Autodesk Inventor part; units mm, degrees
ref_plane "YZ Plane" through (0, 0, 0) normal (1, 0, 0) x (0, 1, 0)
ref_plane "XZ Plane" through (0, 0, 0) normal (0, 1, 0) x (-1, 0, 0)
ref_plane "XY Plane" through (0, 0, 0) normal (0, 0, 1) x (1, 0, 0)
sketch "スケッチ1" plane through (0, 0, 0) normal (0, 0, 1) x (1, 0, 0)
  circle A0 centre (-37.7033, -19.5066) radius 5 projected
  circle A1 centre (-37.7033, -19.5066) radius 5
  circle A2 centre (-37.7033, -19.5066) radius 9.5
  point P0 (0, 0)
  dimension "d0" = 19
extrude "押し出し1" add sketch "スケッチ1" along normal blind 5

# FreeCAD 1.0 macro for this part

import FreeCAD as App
import Part
import Sketcher
from FreeCAD import Vector
Q = App.Units.Quantity

doc = App.newDocument("Part")
body = doc.addObject("PartDesign::Body", "Body")

sketch1 = doc.addObject("Sketcher::SketchObject", "Sketch")
body.addObject(sketch1)
sketch1.AttachmentSupport = (doc.XY_Plane, [""])
sketch1.MapMode = "FlatFace"
sketch1.addGeometry([
    Part.Circle(Vector(-38, -20, 0), Vector(0, 0, 1), 10),
    Part.Circle(Vector(-38, -20, 0), Vector(0, 0, 1), 5),
], False)
sketch1.addConstraint([
    Sketcher.Constraint("Coincident", 1, 3, 0, 3),
    Sketcher.Constraint("Diameter", 0, Q("19 mm")),
    Sketcher.Constraint("Diameter", 1, Q("10 mm")),
    Sketcher.Constraint("DistanceX", 0, 3, -1, 1, Q("37.7033 mm")),
    Sketcher.Constraint("DistanceY", 0, 3, -1, 1, Q("19.5066 mm")),
])
pad1 = doc.addObject("PartDesign::Pad", "Pad")
body.addObject(pad1)
pad1.Profile = sketch1
pad1.Length = 5

doc.recompute()
